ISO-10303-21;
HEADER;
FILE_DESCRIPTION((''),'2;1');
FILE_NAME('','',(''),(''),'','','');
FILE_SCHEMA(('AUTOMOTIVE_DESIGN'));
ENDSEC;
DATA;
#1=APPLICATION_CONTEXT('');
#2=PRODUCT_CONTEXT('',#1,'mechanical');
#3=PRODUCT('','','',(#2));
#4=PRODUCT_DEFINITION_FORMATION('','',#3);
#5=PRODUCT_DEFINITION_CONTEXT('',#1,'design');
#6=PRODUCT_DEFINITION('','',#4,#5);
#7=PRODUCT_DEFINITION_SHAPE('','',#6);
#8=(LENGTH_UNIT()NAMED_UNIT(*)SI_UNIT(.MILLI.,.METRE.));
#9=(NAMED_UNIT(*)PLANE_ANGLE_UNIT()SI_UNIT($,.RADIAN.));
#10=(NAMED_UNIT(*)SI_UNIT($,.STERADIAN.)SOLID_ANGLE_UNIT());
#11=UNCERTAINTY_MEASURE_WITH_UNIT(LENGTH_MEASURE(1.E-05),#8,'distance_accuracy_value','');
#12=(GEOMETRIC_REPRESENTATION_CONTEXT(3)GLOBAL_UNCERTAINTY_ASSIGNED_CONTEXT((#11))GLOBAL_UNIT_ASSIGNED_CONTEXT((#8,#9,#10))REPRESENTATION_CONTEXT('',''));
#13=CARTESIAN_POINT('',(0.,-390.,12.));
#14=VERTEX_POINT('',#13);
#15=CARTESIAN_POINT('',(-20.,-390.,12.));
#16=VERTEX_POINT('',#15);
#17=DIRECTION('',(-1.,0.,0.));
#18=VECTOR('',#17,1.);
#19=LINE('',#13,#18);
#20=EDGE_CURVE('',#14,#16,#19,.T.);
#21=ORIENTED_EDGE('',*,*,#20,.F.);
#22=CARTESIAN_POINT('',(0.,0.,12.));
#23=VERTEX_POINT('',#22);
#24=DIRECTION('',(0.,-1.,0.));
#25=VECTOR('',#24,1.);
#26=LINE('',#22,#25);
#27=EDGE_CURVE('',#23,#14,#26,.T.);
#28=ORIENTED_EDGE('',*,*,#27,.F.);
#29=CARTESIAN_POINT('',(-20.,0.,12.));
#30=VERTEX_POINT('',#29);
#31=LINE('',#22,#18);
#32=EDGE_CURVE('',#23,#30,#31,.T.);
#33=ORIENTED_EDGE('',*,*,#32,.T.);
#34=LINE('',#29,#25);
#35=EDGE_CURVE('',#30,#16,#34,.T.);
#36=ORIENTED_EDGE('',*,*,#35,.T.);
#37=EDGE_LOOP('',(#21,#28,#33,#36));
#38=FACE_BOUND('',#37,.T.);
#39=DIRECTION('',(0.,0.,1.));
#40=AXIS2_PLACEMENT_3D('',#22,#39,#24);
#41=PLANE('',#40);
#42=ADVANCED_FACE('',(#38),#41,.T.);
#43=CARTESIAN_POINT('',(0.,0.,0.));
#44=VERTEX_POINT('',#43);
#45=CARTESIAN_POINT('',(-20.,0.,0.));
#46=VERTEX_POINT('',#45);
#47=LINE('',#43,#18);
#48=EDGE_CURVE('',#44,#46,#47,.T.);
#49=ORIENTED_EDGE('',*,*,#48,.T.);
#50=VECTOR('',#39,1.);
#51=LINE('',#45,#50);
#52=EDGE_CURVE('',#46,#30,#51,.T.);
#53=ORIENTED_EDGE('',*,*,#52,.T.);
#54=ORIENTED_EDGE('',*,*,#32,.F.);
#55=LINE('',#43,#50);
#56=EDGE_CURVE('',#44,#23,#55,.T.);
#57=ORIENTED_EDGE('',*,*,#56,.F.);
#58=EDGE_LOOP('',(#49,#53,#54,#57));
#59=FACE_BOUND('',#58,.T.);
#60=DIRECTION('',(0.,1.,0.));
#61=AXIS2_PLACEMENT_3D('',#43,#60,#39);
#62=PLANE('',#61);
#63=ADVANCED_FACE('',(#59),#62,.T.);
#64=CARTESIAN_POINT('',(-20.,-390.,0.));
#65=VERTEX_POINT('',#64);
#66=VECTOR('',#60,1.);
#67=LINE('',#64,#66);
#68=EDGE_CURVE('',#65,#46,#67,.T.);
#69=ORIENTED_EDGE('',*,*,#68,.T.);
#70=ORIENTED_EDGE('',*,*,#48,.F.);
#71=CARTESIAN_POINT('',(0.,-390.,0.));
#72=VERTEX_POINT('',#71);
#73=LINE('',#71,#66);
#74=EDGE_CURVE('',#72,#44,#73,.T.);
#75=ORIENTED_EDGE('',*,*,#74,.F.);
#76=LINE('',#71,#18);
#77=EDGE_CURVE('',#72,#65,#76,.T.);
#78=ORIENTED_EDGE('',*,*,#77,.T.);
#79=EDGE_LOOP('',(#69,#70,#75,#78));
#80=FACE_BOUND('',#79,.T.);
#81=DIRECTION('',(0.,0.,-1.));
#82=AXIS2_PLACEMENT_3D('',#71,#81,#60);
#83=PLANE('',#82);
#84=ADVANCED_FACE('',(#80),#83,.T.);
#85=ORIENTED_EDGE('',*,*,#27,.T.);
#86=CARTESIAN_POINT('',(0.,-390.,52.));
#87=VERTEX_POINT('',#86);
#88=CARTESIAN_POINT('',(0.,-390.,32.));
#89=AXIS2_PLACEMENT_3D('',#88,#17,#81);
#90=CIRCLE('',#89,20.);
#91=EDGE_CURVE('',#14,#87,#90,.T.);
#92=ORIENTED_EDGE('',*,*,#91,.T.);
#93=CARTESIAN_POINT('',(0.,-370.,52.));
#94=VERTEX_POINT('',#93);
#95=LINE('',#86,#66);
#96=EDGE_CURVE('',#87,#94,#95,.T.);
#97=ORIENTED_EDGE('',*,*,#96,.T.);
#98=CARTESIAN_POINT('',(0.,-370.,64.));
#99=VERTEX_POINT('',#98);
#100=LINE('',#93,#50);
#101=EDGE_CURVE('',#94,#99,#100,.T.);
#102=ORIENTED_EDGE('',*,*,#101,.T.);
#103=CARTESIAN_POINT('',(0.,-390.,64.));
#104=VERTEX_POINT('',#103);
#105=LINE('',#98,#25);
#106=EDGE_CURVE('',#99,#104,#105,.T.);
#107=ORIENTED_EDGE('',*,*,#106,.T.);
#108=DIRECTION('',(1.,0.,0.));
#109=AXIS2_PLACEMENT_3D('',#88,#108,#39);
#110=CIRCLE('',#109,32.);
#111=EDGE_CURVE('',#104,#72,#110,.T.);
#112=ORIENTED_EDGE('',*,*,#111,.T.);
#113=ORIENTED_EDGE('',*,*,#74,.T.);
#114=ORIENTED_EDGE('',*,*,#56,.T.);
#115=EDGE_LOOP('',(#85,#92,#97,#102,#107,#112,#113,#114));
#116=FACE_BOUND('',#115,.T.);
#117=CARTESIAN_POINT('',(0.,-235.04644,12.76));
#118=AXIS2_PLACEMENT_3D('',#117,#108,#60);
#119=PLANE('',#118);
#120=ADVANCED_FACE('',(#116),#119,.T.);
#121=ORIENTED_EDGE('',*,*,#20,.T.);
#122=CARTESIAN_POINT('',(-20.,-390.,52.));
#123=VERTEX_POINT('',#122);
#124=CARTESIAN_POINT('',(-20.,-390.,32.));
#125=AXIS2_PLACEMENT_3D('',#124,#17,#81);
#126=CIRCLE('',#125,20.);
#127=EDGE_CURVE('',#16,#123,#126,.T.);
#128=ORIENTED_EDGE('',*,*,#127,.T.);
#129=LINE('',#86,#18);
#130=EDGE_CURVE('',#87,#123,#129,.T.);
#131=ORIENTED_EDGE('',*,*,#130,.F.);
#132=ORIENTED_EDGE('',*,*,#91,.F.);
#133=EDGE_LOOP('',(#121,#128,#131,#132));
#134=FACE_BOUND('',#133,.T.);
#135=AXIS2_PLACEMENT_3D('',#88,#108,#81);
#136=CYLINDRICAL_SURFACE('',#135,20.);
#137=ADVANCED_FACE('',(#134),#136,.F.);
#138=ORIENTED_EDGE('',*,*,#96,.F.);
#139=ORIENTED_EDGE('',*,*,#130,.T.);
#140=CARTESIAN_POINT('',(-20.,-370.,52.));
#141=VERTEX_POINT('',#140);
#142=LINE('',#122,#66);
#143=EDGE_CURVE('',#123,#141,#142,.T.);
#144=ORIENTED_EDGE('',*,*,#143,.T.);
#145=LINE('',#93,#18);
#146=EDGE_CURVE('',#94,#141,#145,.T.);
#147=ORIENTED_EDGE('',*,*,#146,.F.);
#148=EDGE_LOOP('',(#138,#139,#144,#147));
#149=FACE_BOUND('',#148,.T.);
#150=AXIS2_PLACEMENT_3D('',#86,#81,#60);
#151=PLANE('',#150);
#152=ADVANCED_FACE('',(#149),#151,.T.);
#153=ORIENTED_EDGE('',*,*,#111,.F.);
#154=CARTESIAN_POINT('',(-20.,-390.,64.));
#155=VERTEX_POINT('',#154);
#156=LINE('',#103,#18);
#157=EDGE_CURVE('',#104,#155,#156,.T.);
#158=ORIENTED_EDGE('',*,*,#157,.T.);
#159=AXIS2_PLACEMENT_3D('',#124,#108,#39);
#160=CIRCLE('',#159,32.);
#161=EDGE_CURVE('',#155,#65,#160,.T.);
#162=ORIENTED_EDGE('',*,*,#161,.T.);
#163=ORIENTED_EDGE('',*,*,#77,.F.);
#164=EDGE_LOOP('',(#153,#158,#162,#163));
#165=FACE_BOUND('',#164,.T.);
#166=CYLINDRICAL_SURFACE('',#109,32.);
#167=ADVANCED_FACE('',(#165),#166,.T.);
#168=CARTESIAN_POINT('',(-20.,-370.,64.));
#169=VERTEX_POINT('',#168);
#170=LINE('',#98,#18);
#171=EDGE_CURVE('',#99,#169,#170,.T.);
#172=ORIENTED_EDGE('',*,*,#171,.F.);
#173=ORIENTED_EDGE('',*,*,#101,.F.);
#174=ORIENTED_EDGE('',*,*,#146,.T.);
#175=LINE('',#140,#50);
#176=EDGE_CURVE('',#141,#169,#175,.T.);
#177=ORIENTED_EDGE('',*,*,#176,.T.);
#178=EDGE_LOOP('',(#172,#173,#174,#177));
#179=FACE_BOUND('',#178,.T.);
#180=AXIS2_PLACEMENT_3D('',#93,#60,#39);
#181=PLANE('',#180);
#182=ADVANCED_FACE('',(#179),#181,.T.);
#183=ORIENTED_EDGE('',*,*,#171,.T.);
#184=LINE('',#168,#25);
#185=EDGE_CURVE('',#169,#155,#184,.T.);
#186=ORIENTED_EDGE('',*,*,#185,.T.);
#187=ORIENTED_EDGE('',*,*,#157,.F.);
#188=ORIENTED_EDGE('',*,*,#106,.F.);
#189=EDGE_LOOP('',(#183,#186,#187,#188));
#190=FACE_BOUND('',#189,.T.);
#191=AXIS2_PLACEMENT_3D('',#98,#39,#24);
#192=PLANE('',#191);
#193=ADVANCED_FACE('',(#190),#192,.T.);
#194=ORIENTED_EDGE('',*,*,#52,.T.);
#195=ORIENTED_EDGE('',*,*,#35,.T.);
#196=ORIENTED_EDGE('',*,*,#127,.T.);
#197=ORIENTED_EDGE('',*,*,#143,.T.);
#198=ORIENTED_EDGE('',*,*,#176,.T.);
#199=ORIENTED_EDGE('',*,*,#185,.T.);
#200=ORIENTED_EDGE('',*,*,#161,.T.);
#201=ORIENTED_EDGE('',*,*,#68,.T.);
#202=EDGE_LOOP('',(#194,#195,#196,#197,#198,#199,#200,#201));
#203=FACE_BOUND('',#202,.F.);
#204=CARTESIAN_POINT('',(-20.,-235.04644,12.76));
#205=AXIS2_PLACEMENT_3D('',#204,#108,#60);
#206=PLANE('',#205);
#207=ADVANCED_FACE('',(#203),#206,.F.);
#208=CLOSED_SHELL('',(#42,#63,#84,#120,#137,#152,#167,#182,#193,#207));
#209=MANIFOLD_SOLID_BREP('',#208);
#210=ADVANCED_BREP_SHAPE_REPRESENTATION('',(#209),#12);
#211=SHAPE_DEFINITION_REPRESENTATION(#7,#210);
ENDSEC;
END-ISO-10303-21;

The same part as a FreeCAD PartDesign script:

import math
import FreeCAD as App
import Part
import Sketcher

doc = App.newDocument("Part")
body = doc.addObject("PartDesign::Body", "Body")

# Sketch on YZ plane
sketch1 = body.newObject("Sketcher::SketchObject", "Sketch")
sketch1.AttachmentSupport = (doc.getObject("YZ_Plane"), [""])
sketch1.MapMode = "FlatFace"
sketch1.addGeometry(Part.LineSegment(App.Vector(-390, 0, 0), App.Vector(0, 0, 0)), False)
sketch1.addGeometry(Part.LineSegment(App.Vector(0, 0, 0), App.Vector(0, 12, 0)), False)
sketch1.addGeometry(Part.LineSegment(App.Vector(0, 12, 0), App.Vector(-390, 12, 0)), False)
sketch1.addGeometry(Part.ArcOfCircle(Part.Circle(App.Vector(-390, 32, 0), App.Vector(0, 0, 1), 20), math.radians(90), math.radians(270)), False)
sketch1.addGeometry(Part.LineSegment(App.Vector(-390, 52, 0), App.Vector(-370, 52, 0)), False)
sketch1.addGeometry(Part.LineSegment(App.Vector(-370, 52, 0), App.Vector(-370, 64, 0)), False)
sketch1.addGeometry(Part.LineSegment(App.Vector(-370, 64, 0), App.Vector(-390, 64, 0)), False)
sketch1.addGeometry(Part.ArcOfCircle(Part.Circle(App.Vector(-390, 32, 0), App.Vector(0, 0, 1), 32), math.radians(90), math.radians(270)), False)
sketch1.addConstraint(Sketcher.Constraint("Coincident", 0, 2, 1, 1))
sketch1.addConstraint(Sketcher.Constraint("Coincident", 1, 2, 2, 1))
sketch1.addConstraint(Sketcher.Constraint("Tangent", 2, 2, 3, 2))
sketch1.addConstraint(Sketcher.Constraint("Tangent", 3, 1, 4, 1))
sketch1.addConstraint(Sketcher.Constraint("Coincident", 4, 2, 5, 1))
sketch1.addConstraint(Sketcher.Constraint("Coincident", 5, 2, 6, 1))
sketch1.addConstraint(Sketcher.Constraint("Tangent", 6, 2, 7, 1))
sketch1.addConstraint(Sketcher.Constraint("Tangent", 7, 2, 0, 1))
sketch1.addConstraint(Sketcher.Constraint("Horizontal", 0))
sketch1.addConstraint(Sketcher.Constraint("Vertical", 1))
sketch1.addConstraint(Sketcher.Constraint("Horizontal", 2))
sketch1.addConstraint(Sketcher.Constraint("Horizontal", 4))
sketch1.addConstraint(Sketcher.Constraint("Vertical", 5))
sketch1.addConstraint(Sketcher.Constraint("Horizontal", 6))
sketch1.addConstraint(Sketcher.Constraint("Coincident", 0, 2, -1, 1))
sketch1.addConstraint(Sketcher.Constraint("Coincident", 7, 3, 3, 3))
sketch1.addConstraint(Sketcher.Constraint("Radius", 3, 20.0))
sketch1.addConstraint(Sketcher.Constraint("Radius", 7, 32.0))
sketch1.addConstraint(Sketcher.Constraint("DistanceX", 0, 1, 0, 2, 390.0))
sketch1.addConstraint(Sketcher.Constraint("DistanceX", 4, 1, 4, 2, 20.0))
pad1 = body.newObject("PartDesign::Pad", "Pad")
pad1.Profile = sketch1
pad1.Length = 20
pad1.Reversed = True

doc.recompute()
